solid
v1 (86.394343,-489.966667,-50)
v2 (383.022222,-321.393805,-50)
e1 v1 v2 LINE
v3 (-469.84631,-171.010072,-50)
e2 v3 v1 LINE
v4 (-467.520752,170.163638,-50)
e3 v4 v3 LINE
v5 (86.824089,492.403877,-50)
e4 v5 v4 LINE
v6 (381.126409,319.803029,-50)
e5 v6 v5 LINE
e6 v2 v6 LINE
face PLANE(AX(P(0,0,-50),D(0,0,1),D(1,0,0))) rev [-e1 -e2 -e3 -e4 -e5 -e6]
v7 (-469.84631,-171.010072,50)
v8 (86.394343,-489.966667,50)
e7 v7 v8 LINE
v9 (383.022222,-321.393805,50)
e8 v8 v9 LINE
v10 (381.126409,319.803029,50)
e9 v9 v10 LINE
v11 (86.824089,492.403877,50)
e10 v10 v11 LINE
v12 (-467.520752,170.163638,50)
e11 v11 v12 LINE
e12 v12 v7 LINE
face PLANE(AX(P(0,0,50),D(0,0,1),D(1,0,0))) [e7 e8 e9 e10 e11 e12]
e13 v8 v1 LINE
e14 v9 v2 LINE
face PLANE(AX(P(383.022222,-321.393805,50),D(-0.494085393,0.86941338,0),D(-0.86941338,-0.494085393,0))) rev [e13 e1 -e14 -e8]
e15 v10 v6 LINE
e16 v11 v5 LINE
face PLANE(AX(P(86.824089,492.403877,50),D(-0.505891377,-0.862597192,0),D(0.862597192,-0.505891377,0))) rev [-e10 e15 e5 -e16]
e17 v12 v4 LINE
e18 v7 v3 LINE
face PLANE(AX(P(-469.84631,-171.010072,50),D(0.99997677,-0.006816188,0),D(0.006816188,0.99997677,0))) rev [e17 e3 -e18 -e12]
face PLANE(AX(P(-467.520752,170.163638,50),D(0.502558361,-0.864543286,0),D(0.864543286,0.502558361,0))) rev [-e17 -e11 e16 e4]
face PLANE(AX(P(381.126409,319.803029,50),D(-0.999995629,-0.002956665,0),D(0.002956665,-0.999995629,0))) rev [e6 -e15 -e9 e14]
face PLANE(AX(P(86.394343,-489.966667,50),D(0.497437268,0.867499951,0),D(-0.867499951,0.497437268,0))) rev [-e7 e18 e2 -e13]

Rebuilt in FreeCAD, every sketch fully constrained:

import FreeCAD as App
import Part
import Sketcher

V = App.Vector

doc = App.newDocument("Part")
body = doc.addObject("PartDesign::Body", "Body")

# Sketch on XY plane
sketch1 = body.newObject("Sketcher::SketchObject", "Sketch")
sketch1.AttachmentSupport = (doc.getObject("XY_Plane"), [""])
sketch1.MapMode = "FlatFace"
sketch1.addGeometry(Part.LineSegment(V(383, -321, 0), V(381, 320, 0)), False)
sketch1.addGeometry(Part.LineSegment(V(381, 320, 0), V(87, 492, 0)), False)
sketch1.addGeometry(Part.LineSegment(V(87, 492, 0), V(-468, 170, 0)), False)
sketch1.addGeometry(Part.LineSegment(V(-468, 170, 0), V(-470, -171, 0)), False)
sketch1.addGeometry(Part.LineSegment(V(-470, -171, 0), V(86, -490, 0)), False)
sketch1.addGeometry(Part.LineSegment(V(86, -490, 0), V(383, -321, 0)), False)
sketch1.addConstraint(Sketcher.Constraint("Coincident", 0, 2, 1, 1))
sketch1.addConstraint(Sketcher.Constraint("Coincident", 1, 2, 2, 1))
sketch1.addConstraint(Sketcher.Constraint("Coincident", 2, 2, 3, 1))
sketch1.addConstraint(Sketcher.Constraint("Coincident", 3, 2, 4, 1))
sketch1.addConstraint(Sketcher.Constraint("Coincident", 4, 2, 5, 1))
sketch1.addConstraint(Sketcher.Constraint("Coincident", 5, 2, 0, 1))
sketch1.addConstraint(Sketcher.Constraint("Equal", 0, 2))
sketch1.addConstraint(Sketcher.Constraint("Equal", 1, 3))
sketch1.addConstraint(Sketcher.Constraint("Equal", 2, 4))
sketch1.addConstraint(Sketcher.Constraint("Equal", 3, 5))
sketch1.addConstraint(Sketcher.Constraint("DistanceX", 3, 2, 1, 2, 556.670399))
sketch1.addConstraint(Sketcher.Constraint("DistanceY", 3, 2, 0, 2, 490.813101))
sketch1.addConstraint(Sketcher.Constraint("DistanceX", -1, 1, 0, 2, 381.126409))
sketch1.addConstraint(Sketcher.Constraint("DistanceY", -1, 1, 0, 2, 319.803029))
sketch1.addConstraint(Sketcher.Constraint("DistanceX", -1, 1, 1, 2, 86.824089))
sketch1.addConstraint(Sketcher.Constraint("DistanceX", -1, 1, 5, 2, 383.022222))
sketch1.addConstraint(Sketcher.Constraint("DistanceX", 2, 2, 1, 2, 554.344841))
sketch1.addConstraint(Sketcher.Constraint("DistanceY", 2, 2, 1, 2, 322.240239))
pad1 = body.newObject("PartDesign::Pad", "Pad")
pad1.Profile = sketch1
pad1.Length = 100
pad1.Midplane = True

doc.recompute()
